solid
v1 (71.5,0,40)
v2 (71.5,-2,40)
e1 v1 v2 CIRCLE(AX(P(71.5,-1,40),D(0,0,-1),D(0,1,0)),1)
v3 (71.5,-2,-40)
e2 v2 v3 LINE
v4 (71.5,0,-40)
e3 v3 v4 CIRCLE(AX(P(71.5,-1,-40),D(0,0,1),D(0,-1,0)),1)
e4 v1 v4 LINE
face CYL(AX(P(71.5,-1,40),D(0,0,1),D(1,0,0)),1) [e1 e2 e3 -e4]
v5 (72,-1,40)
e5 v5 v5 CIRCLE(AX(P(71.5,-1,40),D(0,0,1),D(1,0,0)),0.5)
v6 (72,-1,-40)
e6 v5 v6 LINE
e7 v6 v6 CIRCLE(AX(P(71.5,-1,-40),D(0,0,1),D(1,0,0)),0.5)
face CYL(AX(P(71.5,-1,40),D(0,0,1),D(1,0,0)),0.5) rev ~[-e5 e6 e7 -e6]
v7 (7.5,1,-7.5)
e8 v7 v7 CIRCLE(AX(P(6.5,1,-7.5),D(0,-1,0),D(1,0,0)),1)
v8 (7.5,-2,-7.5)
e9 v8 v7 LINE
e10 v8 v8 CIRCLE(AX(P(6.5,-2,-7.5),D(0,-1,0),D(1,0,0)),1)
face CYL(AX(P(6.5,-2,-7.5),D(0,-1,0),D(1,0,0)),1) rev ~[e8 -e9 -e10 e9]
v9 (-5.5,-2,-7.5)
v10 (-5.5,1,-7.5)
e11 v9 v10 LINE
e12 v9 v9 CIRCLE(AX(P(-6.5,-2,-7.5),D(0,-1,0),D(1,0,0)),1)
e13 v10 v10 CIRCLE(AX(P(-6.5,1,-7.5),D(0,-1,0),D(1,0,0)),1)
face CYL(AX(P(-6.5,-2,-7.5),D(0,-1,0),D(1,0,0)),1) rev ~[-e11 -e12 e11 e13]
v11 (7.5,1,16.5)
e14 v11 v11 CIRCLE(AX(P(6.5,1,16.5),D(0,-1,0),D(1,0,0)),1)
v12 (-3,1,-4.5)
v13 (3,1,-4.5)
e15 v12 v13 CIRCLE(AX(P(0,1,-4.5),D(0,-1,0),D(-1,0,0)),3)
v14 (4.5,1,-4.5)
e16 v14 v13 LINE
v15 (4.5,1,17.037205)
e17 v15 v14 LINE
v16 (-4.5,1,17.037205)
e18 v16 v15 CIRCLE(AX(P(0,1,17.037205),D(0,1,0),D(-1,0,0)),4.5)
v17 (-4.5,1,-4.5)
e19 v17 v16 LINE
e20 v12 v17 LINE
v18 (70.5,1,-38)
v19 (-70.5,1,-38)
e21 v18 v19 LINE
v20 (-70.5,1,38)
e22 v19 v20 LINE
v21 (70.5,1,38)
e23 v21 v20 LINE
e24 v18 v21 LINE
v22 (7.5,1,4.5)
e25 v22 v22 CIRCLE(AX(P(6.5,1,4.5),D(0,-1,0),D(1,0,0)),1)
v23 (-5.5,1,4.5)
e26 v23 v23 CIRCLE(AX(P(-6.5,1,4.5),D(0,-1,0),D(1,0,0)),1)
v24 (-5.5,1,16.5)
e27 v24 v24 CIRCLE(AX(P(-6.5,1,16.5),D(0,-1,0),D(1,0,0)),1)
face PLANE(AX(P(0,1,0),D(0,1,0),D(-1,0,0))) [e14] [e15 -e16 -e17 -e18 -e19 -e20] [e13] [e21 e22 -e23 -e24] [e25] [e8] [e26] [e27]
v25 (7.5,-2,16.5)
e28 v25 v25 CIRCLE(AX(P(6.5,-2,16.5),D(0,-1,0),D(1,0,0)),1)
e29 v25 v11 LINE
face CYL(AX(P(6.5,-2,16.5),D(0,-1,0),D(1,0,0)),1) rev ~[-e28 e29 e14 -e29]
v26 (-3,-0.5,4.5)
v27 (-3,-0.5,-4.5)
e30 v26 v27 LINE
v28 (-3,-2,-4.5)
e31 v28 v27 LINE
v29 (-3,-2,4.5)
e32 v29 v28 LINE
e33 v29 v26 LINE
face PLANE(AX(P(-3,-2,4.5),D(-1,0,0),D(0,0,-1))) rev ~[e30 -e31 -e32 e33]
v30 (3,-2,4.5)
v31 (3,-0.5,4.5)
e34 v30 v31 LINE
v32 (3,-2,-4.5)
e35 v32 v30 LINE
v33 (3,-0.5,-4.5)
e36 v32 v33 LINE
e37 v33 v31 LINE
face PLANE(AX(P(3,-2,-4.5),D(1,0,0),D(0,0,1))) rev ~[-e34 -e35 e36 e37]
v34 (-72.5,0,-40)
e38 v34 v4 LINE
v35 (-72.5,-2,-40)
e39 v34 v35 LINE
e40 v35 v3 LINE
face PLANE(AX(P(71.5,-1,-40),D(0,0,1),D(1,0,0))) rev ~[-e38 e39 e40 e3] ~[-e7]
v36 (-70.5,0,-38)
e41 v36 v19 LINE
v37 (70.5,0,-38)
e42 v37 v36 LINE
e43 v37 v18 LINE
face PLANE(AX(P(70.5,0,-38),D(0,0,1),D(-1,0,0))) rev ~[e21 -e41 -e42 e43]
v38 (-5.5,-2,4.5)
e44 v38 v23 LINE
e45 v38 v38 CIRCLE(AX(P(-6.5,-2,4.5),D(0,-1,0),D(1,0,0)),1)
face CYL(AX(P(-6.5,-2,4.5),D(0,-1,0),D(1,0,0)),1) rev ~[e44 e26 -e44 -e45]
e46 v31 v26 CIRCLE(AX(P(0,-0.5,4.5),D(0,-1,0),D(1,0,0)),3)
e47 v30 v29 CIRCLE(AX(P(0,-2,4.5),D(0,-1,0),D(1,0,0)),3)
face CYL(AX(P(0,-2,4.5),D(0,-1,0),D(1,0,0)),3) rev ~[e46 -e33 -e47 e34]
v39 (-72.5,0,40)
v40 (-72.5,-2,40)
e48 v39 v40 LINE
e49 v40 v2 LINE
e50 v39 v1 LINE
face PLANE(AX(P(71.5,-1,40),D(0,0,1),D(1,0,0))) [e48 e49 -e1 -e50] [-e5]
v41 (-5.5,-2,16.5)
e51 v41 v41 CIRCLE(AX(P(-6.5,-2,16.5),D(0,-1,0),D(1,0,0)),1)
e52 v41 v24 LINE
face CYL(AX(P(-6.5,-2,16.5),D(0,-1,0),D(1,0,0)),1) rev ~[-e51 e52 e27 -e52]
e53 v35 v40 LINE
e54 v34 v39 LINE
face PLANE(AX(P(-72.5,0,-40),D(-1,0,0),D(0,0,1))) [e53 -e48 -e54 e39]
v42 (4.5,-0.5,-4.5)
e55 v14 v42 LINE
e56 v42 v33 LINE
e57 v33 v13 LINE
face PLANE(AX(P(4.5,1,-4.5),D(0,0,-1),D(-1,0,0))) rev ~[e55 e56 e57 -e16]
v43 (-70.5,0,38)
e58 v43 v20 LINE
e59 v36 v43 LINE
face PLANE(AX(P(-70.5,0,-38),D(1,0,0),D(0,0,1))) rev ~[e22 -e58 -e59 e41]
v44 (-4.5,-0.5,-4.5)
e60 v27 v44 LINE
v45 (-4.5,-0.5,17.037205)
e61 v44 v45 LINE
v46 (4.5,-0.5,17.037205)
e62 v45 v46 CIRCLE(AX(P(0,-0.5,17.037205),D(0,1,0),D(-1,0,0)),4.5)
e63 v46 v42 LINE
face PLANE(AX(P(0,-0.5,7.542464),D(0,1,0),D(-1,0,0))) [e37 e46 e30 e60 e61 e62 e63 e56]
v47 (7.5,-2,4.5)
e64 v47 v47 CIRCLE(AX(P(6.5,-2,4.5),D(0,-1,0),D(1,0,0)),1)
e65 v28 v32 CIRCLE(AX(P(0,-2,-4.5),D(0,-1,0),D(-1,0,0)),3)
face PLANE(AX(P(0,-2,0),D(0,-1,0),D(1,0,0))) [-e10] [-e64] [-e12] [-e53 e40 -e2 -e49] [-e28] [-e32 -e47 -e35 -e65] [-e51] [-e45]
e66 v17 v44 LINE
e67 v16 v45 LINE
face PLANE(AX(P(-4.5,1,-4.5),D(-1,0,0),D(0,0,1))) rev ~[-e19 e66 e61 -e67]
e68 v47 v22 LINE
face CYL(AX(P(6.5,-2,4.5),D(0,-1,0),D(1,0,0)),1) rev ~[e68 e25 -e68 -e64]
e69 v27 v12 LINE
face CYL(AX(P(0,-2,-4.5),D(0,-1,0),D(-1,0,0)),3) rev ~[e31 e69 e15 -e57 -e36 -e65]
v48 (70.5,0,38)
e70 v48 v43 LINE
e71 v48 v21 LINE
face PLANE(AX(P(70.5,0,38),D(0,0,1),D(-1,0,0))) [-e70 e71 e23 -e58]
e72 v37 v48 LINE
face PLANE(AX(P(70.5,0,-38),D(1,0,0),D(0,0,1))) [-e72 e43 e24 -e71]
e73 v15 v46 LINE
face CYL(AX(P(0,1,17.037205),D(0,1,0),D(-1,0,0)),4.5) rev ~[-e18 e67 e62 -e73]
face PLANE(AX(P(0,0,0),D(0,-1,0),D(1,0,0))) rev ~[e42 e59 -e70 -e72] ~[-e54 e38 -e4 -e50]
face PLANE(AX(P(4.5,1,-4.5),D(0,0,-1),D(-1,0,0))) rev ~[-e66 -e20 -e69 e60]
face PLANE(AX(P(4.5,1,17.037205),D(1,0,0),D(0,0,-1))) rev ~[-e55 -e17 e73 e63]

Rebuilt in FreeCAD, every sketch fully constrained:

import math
import FreeCAD as App
import Part
import Sketcher
from FreeCAD import Vector
Q = App.Units.Quantity

doc = App.newDocument("Part")
body = doc.addObject("PartDesign::Body", "Body")

sketch1 = body.newObject("Sketcher::SketchObject", "Sketch")
sketch1.AttachmentSupport = (doc.getObject("XZ_Plane"), [""])
sketch1.MapMode = "FlatFace"
sketch1.addGeometry(Part.LineSegment(Vector(-72, 40, 0), Vector(-72, -40, 0)), False)
sketch1.addGeometry(Part.LineSegment(Vector(-72, -40, 0), Vector(72, -40, 0)), False)
sketch1.addGeometry(Part.LineSegment(Vector(72, -40, 0), Vector(72, 40, 0)), False)
sketch1.addGeometry(Part.LineSegment(Vector(72, 40, 0), Vector(-72, 40, 0)), False)
sketch1.addConstraint(Sketcher.Constraint("Coincident", 0, 2, 1, 1))
sketch1.addConstraint(Sketcher.Constraint("Coincident", 1, 2, 2, 1))
sketch1.addConstraint(Sketcher.Constraint("Coincident", 2, 2, 3, 1))
sketch1.addConstraint(Sketcher.Constraint("Coincident", 3, 2, 0, 1))
sketch1.addConstraint(Sketcher.Constraint("Vertical", 0))
sketch1.addConstraint(Sketcher.Constraint("Horizontal", 1))
sketch1.addConstraint(Sketcher.Constraint("Vertical", 2))
sketch1.addConstraint(Sketcher.Constraint("Horizontal", 3))
sketch1.addConstraint(Sketcher.Constraint("Symmetric", 0, 2, 2, 2, -1, 1))
sketch1.addConstraint(Sketcher.Constraint("DistanceX", 1, 1, 1, 2, Q("145 mm")))
sketch1.addConstraint(Sketcher.Constraint("DistanceY", 0, 2, 0, 1, Q("80 mm")))
pad1 = body.newObject("PartDesign::Pad", "Pad")
pad1.Profile = sketch1
pad1.Length = 2

sketch2 = body.newObject("Sketcher::SketchObject", "Sketch001")
sketch2.AttachmentSupport = (doc.getObject("XZ_Plane"), [""])
sketch2.MapMode = "FlatFace"
sketch2.addGeometry(Part.LineSegment(Vector(70, 38, 0), Vector(70, -38, 0)), False)
sketch2.addGeometry(Part.LineSegment(Vector(70, -38, 0), Vector(-70, -38, 0)), False)
sketch2.addGeometry(Part.LineSegment(Vector(-70, -38, 0), Vector(-70, 38, 0)), False)
sketch2.addGeometry(Part.LineSegment(Vector(-70, 38, 0), Vector(70, 38, 0)), False)
sketch2.addConstraint(Sketcher.Constraint("Coincident", 0, 2, 1, 1))
sketch2.addConstraint(Sketcher.Constraint("Coincident", 1, 2, 2, 1))
sketch2.addConstraint(Sketcher.Constraint("Coincident", 2, 2, 3, 1))
sketch2.addConstraint(Sketcher.Constraint("Coincident", 3, 2, 0, 1))
sketch2.addConstraint(Sketcher.Constraint("Vertical", 0))
sketch2.addConstraint(Sketcher.Constraint("Horizontal", 1))
sketch2.addConstraint(Sketcher.Constraint("Vertical", 2))
sketch2.addConstraint(Sketcher.Constraint("Horizontal", 3))
sketch2.addConstraint(Sketcher.Constraint("Symmetric", 0, 2, 2, 2, -1, 1))
sketch2.addConstraint(Sketcher.Constraint("DistanceX", 1, 2, 1, 1, Q("141 mm")))
sketch2.addConstraint(Sketcher.Constraint("DistanceY", 0, 2, 0, 1, Q("76 mm")))
pad2 = body.newObject("PartDesign::Pad", "Pad001")
pad2.Profile = sketch2
pad2.Length = 1
pad2.Reversed = True

sketch3 = body.newObject("Sketcher::SketchObject", "Sketch002")
sketch3.AttachmentSupport = (doc.getObject("XZ_Plane"), [""])
sketch3.MapMode = "FlatFace"
sketch3.AttachmentOffset = App.Placement(Vector(0, 0, 2), App.Rotation())
sketch3.addGeometry(Part.LineSegment(Vector(3, -4.5, 0), Vector(3, 4.5, 0)), False)
sketch3.addGeometry(Part.ArcOfCircle(Part.Circle(Vector(0, 4.5, 0), Vector(0, 0, 1), 3), math.radians(0), math.radians(180)), False)
sketch3.addGeometry(Part.LineSegment(Vector(-3, 4.5, 0), Vector(-3, -4.5, 0)), False)
sketch3.addGeometry(Part.ArcOfCircle(Part.Circle(Vector(0, -4.5, 0), Vector(0, 0, 1), 3), math.radians(180), math.radians(360)), False)
sketch3.addConstraint(Sketcher.Constraint("Tangent", 0, 2, 1, 1))
sketch3.addConstraint(Sketcher.Constraint("Tangent", 1, 2, 2, 1))
sketch3.addConstraint(Sketcher.Constraint("Tangent", 2, 2, 3, 1))
sketch3.addConstraint(Sketcher.Constraint("Tangent", 3, 2, 0, 1))
sketch3.addConstraint(Sketcher.Constraint("Vertical", 0))
sketch3.addConstraint(Sketcher.Constraint("Vertical", 2))
sketch3.addConstraint(Sketcher.Constraint("Symmetric", 1, 3, 3, 3, -1, 1))
sketch3.addConstraint(Sketcher.Constraint("Radius", 1, Q("3 mm")))
sketch3.addConstraint(Sketcher.Constraint("DistanceY", 0, 1, 0, 2, Q("9 mm")))
pocket1 = body.newObject("PartDesign::Pocket", "Pocket")
pocket1.Profile = sketch3
pocket1.Length = 25

sketch4 = body.newObject("Sketcher::SketchObject", "Sketch003")
sketch4.AttachmentSupport = (doc.getObject("XZ_Plane"), [""])
sketch4.MapMode = "FlatFace"
sketch4.AttachmentOffset = App.Placement(Vector(0, 0, 2), App.Rotation())
sketch4.addGeometry(Part.Circle(Vector(-6.5, 16.5, 0), Vector(0, 0, 1), 1), False)
sketch4.addGeometry(Part.Circle(Vector(6.5, 16.5, 0), Vector(0, 0, 1), 1), False)
sketch4.addGeometry(Part.Circle(Vector(6.5, -7.5, 0), Vector(0, 0, 1), 1), False)
sketch4.addGeometry(Part.Circle(Vector(-6.5, -7.5, 0), Vector(0, 0, 1), 1), False)
sketch4.addGeometry(Part.Circle(Vector(-6.5, 4.5, 0), Vector(0, 0, 1), 1), False)
sketch4.addGeometry(Part.Circle(Vector(6.5, 4.5, 0), Vector(0, 0, 1), 1), False)
sketch4.addConstraint(Sketcher.Constraint("Equal", 0, 1))
sketch4.addConstraint(Sketcher.Constraint("Equal", 1, 2))
sketch4.addConstraint(Sketcher.Constraint("Equal", 2, 3))
sketch4.addConstraint(Sketcher.Constraint("Equal", 3, 4))
sketch4.addConstraint(Sketcher.Constraint("Equal", 4, 5))
sketch4.addConstraint(Sketcher.Constraint("Symmetric", 0, 3, 1, 3, -2))
sketch4.addConstraint(Sketcher.Constraint("Symmetric", 2, 3, 3, 3, -2))
sketch4.addConstraint(Sketcher.Constraint("Symmetric", 4, 3, 5, 3, -2))
sketch4.addConstraint(Sketcher.Constraint("Vertical", 1, 3, 2, 3))
sketch4.addConstraint(Sketcher.Constraint("Vertical", 3, 3, 4, 3))
sketch4.addConstraint(Sketcher.Constraint("Diameter", 0, Q("2 mm")))
sketch4.addConstraint(Sketcher.Constraint("DistanceX", 0, 3, 1, 3, Q("13 mm")))
sketch4.addConstraint(Sketcher.Constraint("DistanceY", 2, 3, 1, 3, Q("24 mm")))
sketch4.addConstraint(Sketcher.Constraint("DistanceY", 4, 3, 0, 3, Q("12 mm")))
sketch4.addConstraint(Sketcher.Constraint("DistanceY", -1, 1, 0, 3, Q("16.5 mm")))
pocket2 = body.newObject("PartDesign::Pocket", "Pocket001")
pocket2.Profile = sketch4
pocket2.Length = 25

sketch5 = body.newObject("Sketcher::SketchObject", "Sketch004")
sketch5.AttachmentSupport = (doc.getObject("XY_Plane"), [""])
sketch5.MapMode = "FlatFace"
sketch5.AttachmentOffset = App.Placement(Vector(0, 0, 40), App.Rotation())
sketch5.addGeometry(Part.LineSegment(Vector(71.5, 0, 0), Vector(71.5, -2, 0)), False)
sketch5.addGeometry(Part.LineSegment(Vector(71.5, -2, 0), Vector(72.5, -2, 0)), False)
sketch5.addGeometry(Part.LineSegment(Vector(72.5, -2, 0), Vector(72.5, 0, 0)), False)
sketch5.addGeometry(Part.LineSegment(Vector(72.5, 0, 0), Vector(71.5, 0, 0)), False)
sketch5.addConstraint(Sketcher.Constraint("Coincident", 0, 2, 1, 1))
sketch5.addConstraint(Sketcher.Constraint("Coincident", 1, 2, 2, 1))
sketch5.addConstraint(Sketcher.Constraint("Coincident", 2, 2, 3, 1))
sketch5.addConstraint(Sketcher.Constraint("Coincident", 3, 2, 0, 1))
sketch5.addConstraint(Sketcher.Constraint("Vertical", 0))
sketch5.addConstraint(Sketcher.Constraint("Horizontal", 1))
sketch5.addConstraint(Sketcher.Constraint("Vertical", 2))
sketch5.addConstraint(Sketcher.Constraint("Horizontal", 3))
sketch5.addConstraint(Sketcher.Constraint("PointOnObject", 2, 2, -1))
sketch5.addConstraint(Sketcher.Constraint("DistanceX", 1, 1, 1, 2, Q("1 mm")))
sketch5.addConstraint(Sketcher.Constraint("DistanceY", 0, 2, 0, 1, Q("2 mm")))
sketch5.addConstraint(Sketcher.Constraint("DistanceX", -1, 1, 0, 2, Q("71.5 mm")))
pocket3 = body.newObject("PartDesign::Pocket", "Pocket002")
pocket3.Profile = sketch5
pocket3.Length = 200

sketch6 = body.newObject("Sketcher::SketchObject", "Sketch005")
sketch6.AttachmentSupport = (doc.getObject("XY_Plane"), [""])
sketch6.MapMode = "FlatFace"
sketch6.AttachmentOffset = App.Placement(Vector(0, 0, 40), App.Rotation())
sketch6.addGeometry(Part.Circle(Vector(71.5, -1, 0), Vector(0, 0, 1), 1), False)
sketch6.addConstraint(Sketcher.Constraint("Diameter", 0, Q("2 mm")))
sketch6.addConstraint(Sketcher.Constraint("DistanceY", 0, 3, -1, 1, Q("1 mm")))
sketch6.addConstraint(Sketcher.Constraint("DistanceX", -1, 1, 0, 3, Q("71.5 mm")))
pad3 = body.newObject("PartDesign::Pad", "Pad002")
pad3.Profile = sketch6
pad3.Length = 80
pad3.Reversed = True

sketch7 = body.newObject("Sketcher::SketchObject", "Sketch006")
sketch7.AttachmentSupport = (doc.getObject("XY_Plane"), [""])
sketch7.MapMode = "FlatFace"
sketch7.AttachmentOffset = App.Placement(Vector(0, 0, 40), App.Rotation())
sketch7.addGeometry(Part.Circle(Vector(71.5, -1, 0), Vector(0, 0, 1), 0.5), False)
sketch7.addConstraint(Sketcher.Constraint("Diameter", 0, Q("1 mm")))
sketch7.addConstraint(Sketcher.Constraint("DistanceY", 0, 3, -1, 1, Q("1 mm")))
sketch7.addConstraint(Sketcher.Constraint("DistanceX", -1, 1, 0, 3, Q("71.5 mm")))
pocket4 = body.newObject("PartDesign::Pocket", "Pocket003")
pocket4.Profile = sketch7
pocket4.Length = 300

sketch8 = body.newObject("Sketcher::SketchObject", "Sketch007")
sketch8.AttachmentSupport = (doc.getObject("XZ_Plane"), [""])
sketch8.MapMode = "FlatFace"
sketch8.AttachmentOffset = App.Placement(Vector(0, 0, -1), App.Rotation())
sketch8.addGeometry(Part.LineSegment(Vector(4.5, -4.5, 0), Vector(-4.5, -4.5, 0)), False)
sketch8.addGeometry(Part.LineSegment(Vector(-4.5, -4.5, 0), Vector(-4.5, 17, 0)), False)
sketch8.addGeometry(Part.ArcOfCircle(Part.Circle(Vector(0, 17, 0), Vector(0, 0, 1), 4.5), math.radians(0), math.radians(180)), False)
sketch8.addGeometry(Part.LineSegment(Vector(4.5, 17, 0), Vector(4.5, -4.5, 0)), False)
sketch8.addConstraint(Sketcher.Constraint("Coincident", 0, 2, 1, 1))
sketch8.addConstraint(Sketcher.Constraint("Tangent", 1, 2, 2, 2))
sketch8.addConstraint(Sketcher.Constraint("Tangent", 2, 1, 3, 1))
sketch8.addConstraint(Sketcher.Constraint("Coincident", 3, 2, 0, 1))
sketch8.addConstraint(Sketcher.Constraint("Horizontal", 0))
sketch8.addConstraint(Sketcher.Constraint("Vertical", 1))
sketch8.addConstraint(Sketcher.Constraint("Vertical", 3))
sketch8.addConstraint(Sketcher.Constraint("PointOnObject", 2, 3, -2))
sketch8.addConstraint(Sketcher.Constraint("Radius", 2, Q("4.5 mm")))
sketch8.addConstraint(Sketcher.Constraint("DistanceY", 0, 2, -1, 1, Q("4.5 mm")))
sketch8.addConstraint(Sketcher.Constraint("DistanceY", 1, 1, 1, 2, Q("21.537205 mm")))
pocket5 = body.newObject("PartDesign::Pocket", "Pocket004")
pocket5.Profile = sketch8
pocket5.Length = 1.5
pocket5.Reversed = True

doc.recompute()
